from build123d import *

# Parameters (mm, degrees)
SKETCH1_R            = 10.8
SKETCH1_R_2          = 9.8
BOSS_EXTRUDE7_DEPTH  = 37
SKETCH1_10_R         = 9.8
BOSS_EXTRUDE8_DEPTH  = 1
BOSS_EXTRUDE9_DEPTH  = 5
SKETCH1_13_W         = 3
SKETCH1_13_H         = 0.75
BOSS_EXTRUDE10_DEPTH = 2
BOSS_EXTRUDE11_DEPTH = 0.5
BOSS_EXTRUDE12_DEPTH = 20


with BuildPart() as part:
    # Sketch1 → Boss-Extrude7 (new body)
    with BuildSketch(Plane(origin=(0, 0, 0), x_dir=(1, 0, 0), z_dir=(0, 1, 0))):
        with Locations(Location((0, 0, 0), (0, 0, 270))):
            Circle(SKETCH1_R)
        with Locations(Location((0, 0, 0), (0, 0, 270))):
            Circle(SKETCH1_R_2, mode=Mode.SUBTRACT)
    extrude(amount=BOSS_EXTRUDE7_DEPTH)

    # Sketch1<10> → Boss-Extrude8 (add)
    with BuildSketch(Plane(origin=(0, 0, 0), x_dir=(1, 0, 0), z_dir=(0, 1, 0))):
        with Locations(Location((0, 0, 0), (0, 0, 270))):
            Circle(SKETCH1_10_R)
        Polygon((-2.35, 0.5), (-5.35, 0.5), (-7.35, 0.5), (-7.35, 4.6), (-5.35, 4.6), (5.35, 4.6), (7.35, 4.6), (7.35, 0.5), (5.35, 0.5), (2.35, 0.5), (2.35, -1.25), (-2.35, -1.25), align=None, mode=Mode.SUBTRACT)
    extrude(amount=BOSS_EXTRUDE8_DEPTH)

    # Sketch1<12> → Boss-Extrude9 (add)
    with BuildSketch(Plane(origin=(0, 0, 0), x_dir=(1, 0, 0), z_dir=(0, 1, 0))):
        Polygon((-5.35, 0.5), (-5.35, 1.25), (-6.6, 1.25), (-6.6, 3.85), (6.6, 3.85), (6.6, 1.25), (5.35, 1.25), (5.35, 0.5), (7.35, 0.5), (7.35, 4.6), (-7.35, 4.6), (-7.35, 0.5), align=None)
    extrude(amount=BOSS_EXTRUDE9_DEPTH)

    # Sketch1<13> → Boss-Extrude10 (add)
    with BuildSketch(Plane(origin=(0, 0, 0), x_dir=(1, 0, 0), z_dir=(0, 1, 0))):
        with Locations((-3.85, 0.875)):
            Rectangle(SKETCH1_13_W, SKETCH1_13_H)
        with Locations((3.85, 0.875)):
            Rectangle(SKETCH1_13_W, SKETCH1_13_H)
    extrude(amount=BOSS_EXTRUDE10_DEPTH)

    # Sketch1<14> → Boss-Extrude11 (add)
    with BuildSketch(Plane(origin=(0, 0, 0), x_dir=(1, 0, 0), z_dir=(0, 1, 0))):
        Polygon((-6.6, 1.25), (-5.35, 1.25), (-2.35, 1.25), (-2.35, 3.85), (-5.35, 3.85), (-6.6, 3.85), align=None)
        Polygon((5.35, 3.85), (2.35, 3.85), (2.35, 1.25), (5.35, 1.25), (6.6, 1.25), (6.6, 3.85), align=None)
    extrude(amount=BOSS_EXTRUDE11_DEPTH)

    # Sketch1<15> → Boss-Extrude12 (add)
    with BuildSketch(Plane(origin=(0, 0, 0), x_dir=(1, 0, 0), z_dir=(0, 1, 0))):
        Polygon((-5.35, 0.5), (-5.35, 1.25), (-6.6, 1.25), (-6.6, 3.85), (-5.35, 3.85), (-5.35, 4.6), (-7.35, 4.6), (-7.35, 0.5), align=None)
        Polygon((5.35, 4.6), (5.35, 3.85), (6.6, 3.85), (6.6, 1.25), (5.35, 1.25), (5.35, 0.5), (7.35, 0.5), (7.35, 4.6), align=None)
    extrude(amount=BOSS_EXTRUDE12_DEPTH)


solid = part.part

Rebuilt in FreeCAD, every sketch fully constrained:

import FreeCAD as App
import Part
import Sketcher
from FreeCAD import Vector

doc = App.newDocument("Part")
body = doc.addObject("PartDesign::Body", "Body")

# Sketch on XZ plane
sketch1 = doc.addObject("Sketcher::SketchObject", "Sketch")
body.addObject(sketch1)
sketch1.AttachmentSupport = (doc.XZ_Plane, [""])
sketch1.MapMode = "FlatFace"
sketch1.addGeometry([
    Part.Circle(Vector(0, 0, 0), Vector(0, 0, 1), 11),
    Part.Circle(Vector(0, 0, 0), Vector(0, 0, 1), 10),
], False)
sketch1.addConstraint([
    Sketcher.Constraint("Coincident", 0, 3, -1, 1),
    Sketcher.Constraint("Coincident", 1, 3, -1, 1),
    Sketcher.Constraint("Diameter", 0, 21.6),
    Sketcher.Constraint("Diameter", 1, 19.6),
])
pad1 = doc.addObject("PartDesign::Pad", "Pad")
body.addObject(pad1)
pad1.Profile = sketch1
pad1.Length = 37
pad1.Reversed = True

# Sketch on XZ plane
sketch2 = doc.addObject("Sketcher::SketchObject", "Sketch001")
body.addObject(sketch2)
sketch2.AttachmentSupport = (doc.XZ_Plane, [""])
sketch2.MapMode = "FlatFace"
sketch2.addGeometry([
    Part.Circle(Vector(0, 0, 0), Vector(0, 0, 1), 9.8),  # 0
    Part.LineSegment(Vector(-2.4, 1.2, 0), Vector(-2.4, -0.5, 0)),  # 1
    Part.LineSegment(Vector(-2.4, -0.5, 0), Vector(-7.3, -0.5, 0)),  # 2
    Part.LineSegment(Vector(-7.3, -0.5, 0), Vector(-7.3, -4.6, 0)),  # 3
    Part.LineSegment(Vector(-7.3, -4.6, 0), Vector(7.3, -4.6, 0)),  # 4
    Part.LineSegment(Vector(7.3, -4.6, 0), Vector(7.3, -0.5, 0)),  # 5
    Part.LineSegment(Vector(7.3, -0.5, 0), Vector(2.4, -0.5, 0)),  # 6
    Part.LineSegment(Vector(2.4, -0.5, 0), Vector(2.4, 1.2, 0)),  # 7
    Part.LineSegment(Vector(2.4, 1.2, 0), Vector(-2.4, 1.2, 0)),  # 8
], False)
sketch2.addConstraint([
    Sketcher.Constraint("Coincident", 1, 2, 2, 1),
    Sketcher.Constraint("Coincident", 2, 2, 3, 1),
    Sketcher.Constraint("Coincident", 3, 2, 4, 1),
    Sketcher.Constraint("Coincident", 4, 2, 5, 1),
    Sketcher.Constraint("Coincident", 5, 2, 6, 1),
    Sketcher.Constraint("Coincident", 6, 2, 7, 1),
    Sketcher.Constraint("Coincident", 7, 2, 8, 1),
    Sketcher.Constraint("Coincident", 8, 2, 1, 1),
    Sketcher.Constraint("Vertical", 1),
    Sketcher.Constraint("Horizontal", 2),
    Sketcher.Constraint("Vertical", 3),
    Sketcher.Constraint("Horizontal", 4),
    Sketcher.Constraint("Vertical", 5),
    Sketcher.Constraint("Horizontal", 6),
    Sketcher.Constraint("Vertical", 7),
    Sketcher.Constraint("Horizontal", 8),
    Sketcher.Constraint("Coincident", 0, 3, -1, 1),
    Sketcher.Constraint("Symmetric", 2, 2, 5, 2, -2),
    Sketcher.Constraint("Equal", 2, 6),
    Sketcher.Constraint("Diameter", 0, 19.6),
    Sketcher.Constraint("DistanceX", 2, 2, 2, 1, 5.0),
    Sketcher.Constraint("DistanceX", 4, 1, 4, 2, 14.7),
    Sketcher.Constraint("DistanceY", 3, 2, 3, 1, 4.1),
    Sketcher.Constraint("DistanceY", 1, 2, 1, 1, 1.75),
    Sketcher.Constraint("DistanceY", 1, 2, -1, 1, 0.5),
])
pad2 = doc.addObject("PartDesign::Pad", "Pad001")
body.addObject(pad2)
pad2.Profile = sketch2
pad2.Length = 1
pad2.Reversed = True

# Sketch on XZ plane
sketch3 = doc.addObject("Sketcher::SketchObject", "Sketch002")
body.addObject(sketch3)
sketch3.AttachmentSupport = (doc.XZ_Plane, [""])
sketch3.MapMode = "FlatFace"
sketch3.addGeometry([
    Part.LineSegment(Vector(-5.3, -0.5, 0), Vector(-5.3, -1.2, 0)),  # 0
    Part.LineSegment(Vector(-5.3, -1.2, 0), Vector(-6.6, -1.2, 0)),  # 1
    Part.LineSegment(Vector(-6.6, -1.2, 0), Vector(-6.6, -3.9, 0)),  # 2
    Part.LineSegment(Vector(-6.6, -3.9, 0), Vector(6.6, -3.9, 0)),  # 3
    Part.LineSegment(Vector(6.6, -3.9, 0), Vector(6.6, -1.2, 0)),  # 4
    Part.LineSegment(Vector(6.6, -1.2, 0), Vector(5.3, -1.2, 0)),  # 5
    Part.LineSegment(Vector(5.3, -1.2, 0), Vector(5.3, -0.5, 0)),  # 6
    Part.LineSegment(Vector(5.3, -0.5, 0), Vector(7.3, -0.5, 0)),  # 7
    Part.LineSegment(Vector(7.3, -0.5, 0), Vector(7.3, -4.6, 0)),  # 8
    Part.LineSegment(Vector(7.3, -4.6, 0), Vector(-7.3, -4.6, 0)),  # 9
    Part.LineSegment(Vector(-7.3, -4.6, 0), Vector(-7.3, -0.5, 0)),  # 10
    Part.LineSegment(Vector(-7.3, -0.5, 0), Vector(-5.3, -0.5, 0)),  # 11
], False)
sketch3.addConstraint([
    Sketcher.Constraint("Coincident", 0, 2, 1, 1),
    Sketcher.Constraint("Coincident", 1, 2, 2, 1),
    Sketcher.Constraint("Coincident", 2, 2, 3, 1),
    Sketcher.Constraint("Coincident", 3, 2, 4, 1),
    Sketcher.Constraint("Coincident", 4, 2, 5, 1),
    Sketcher.Constraint("Coincident", 5, 2, 6, 1),
    Sketcher.Constraint("Coincident", 6, 2, 7, 1),
    Sketcher.Constraint("Coincident", 7, 2, 8, 1),
    Sketcher.Constraint("Coincident", 8, 2, 9, 1),
    Sketcher.Constraint("Coincident", 9, 2, 10, 1),
    Sketcher.Constraint("Coincident", 10, 2, 11, 1),
    Sketcher.Constraint("Coincident", 11, 2, 0, 1),
    Sketcher.Constraint("Vertical", 0),
    Sketcher.Constraint("Horizontal", 1),
    Sketcher.Constraint("Vertical", 2),
    Sketcher.Constraint("Horizontal", 3),
    Sketcher.Constraint("Vertical", 4),
    Sketcher.Constraint("Horizontal", 5),
    Sketcher.Constraint("Vertical", 6),
    Sketcher.Constraint("Horizontal", 7),
    Sketcher.Constraint("Vertical", 8),
    Sketcher.Constraint("Horizontal", 9),
    Sketcher.Constraint("Vertical", 10),
    Sketcher.Constraint("Horizontal", 11),
    Sketcher.Constraint("Symmetric", 1, 2, 4, 2, -2),
    Sketcher.Constraint("Symmetric", 7, 2, 10, 2, -2),
    Sketcher.Constraint("Equal", 1, 5),
    Sketcher.Constraint("DistanceX", 7, 1, 7, 2, 2.0),
    Sketcher.Constraint("DistanceX", 3, 1, 3, 2, 13.2),
    Sketcher.Constraint("DistanceX", 9, 2, 9, 1, 14.7),
    Sketcher.Constraint("DistanceY", 2, 2, 2, 1, 2.6),
    Sketcher.Constraint("DistanceY", 8, 2, 8, 1, 4.1),
    Sketcher.Constraint("DistanceY", 0, 2, 0, 1, 0.75),
    Sketcher.Constraint("DistanceY", 6, 2, -1, 1, 0.5),
])
pad3 = doc.addObject("PartDesign::Pad", "Pad002")
body.addObject(pad3)
pad3.Profile = sketch3
pad3.Length = 5
pad3.Reversed = True

# Sketch on XZ plane
sketch4 = doc.addObject("Sketcher::SketchObject", "Sketch003")
body.addObject(sketch4)
sketch4.AttachmentSupport = (doc.XZ_Plane, [""])
sketch4.MapMode = "FlatFace"
sketch4.addGeometry([
    Part.LineSegment(Vector(-5.3, -1.2, 0), Vector(-5.3, -0.5, 0)),  # 0
    Part.LineSegment(Vector(-5.3, -0.5, 0), Vector(-2.4, -0.5, 0)),  # 1
    Part.LineSegment(Vector(-2.4, -0.5, 0), Vector(-2.4, -1.2, 0)),  # 2
    Part.LineSegment(Vector(-2.4, -1.2, 0), Vector(-5.3, -1.2, 0)),  # 3
    Part.LineSegment(Vector(2.4, -1.2, 0), Vector(2.4, -0.5, 0)),  # 4
    Part.LineSegment(Vector(2.4, -0.5, 0), Vector(5.3, -0.5, 0)),  # 5
    Part.LineSegment(Vector(5.3, -0.5, 0), Vector(5.3, -1.2, 0)),  # 6
    Part.LineSegment(Vector(5.3, -1.2, 0), Vector(2.4, -1.2, 0)),  # 7
], False)
sketch4.addConstraint([
    Sketcher.Constraint("Coincident", 0, 2, 1, 1),
    Sketcher.Constraint("Coincident", 1, 2, 2, 1),
    Sketcher.Constraint("Coincident", 2, 2, 3, 1),
    Sketcher.Constraint("Coincident", 3, 2, 0, 1),
    Sketcher.Constraint("Coincident", 4, 2, 5, 1),
    Sketcher.Constraint("Coincident", 5, 2, 6, 1),
    Sketcher.Constraint("Coincident", 6, 2, 7, 1),
    Sketcher.Constraint("Coincident", 7, 2, 4, 1),
    Sketcher.Constraint("Vertical", 0),
    Sketcher.Constraint("Horizontal", 1),
    Sketcher.Constraint("Vertical", 2),
    Sketcher.Constraint("Horizontal", 3),
    Sketcher.Constraint("Vertical", 4),
    Sketcher.Constraint("Horizontal", 5),
    Sketcher.Constraint("Vertical", 6),
    Sketcher.Constraint("Horizontal", 7),
    Sketcher.Constraint("Symmetric", 1, 2, 4, 2, -2),
    Sketcher.Constraint("Symmetric", 3, 2, 6, 2, -2),
    Sketcher.Constraint("DistanceX", 1, 1, 1, 2, 3.0),
    Sketcher.Constraint("DistanceY", 0, 1, 0, 2, 0.75),
    Sketcher.Constraint("DistanceY", 0, 2, -1, 1, 0.5),
    Sketcher.Constraint("DistanceX", 1, 2, 4, 2, 4.7),
])
pad4 = doc.addObject("PartDesign::Pad", "Pad003")
body.addObject(pad4)
pad4.Profile = sketch4
pad4.Length = 2
pad4.Reversed = True

# Sketch on XZ plane
sketch5 = doc.addObject("Sketcher::SketchObject", "Sketch004")
body.addObject(sketch5)
sketch5.AttachmentSupport = (doc.XZ_Plane, [""])
sketch5.MapMode = "FlatFace"
sketch5.addGeometry([
    Part.LineSegment(Vector(-6.6, -1.2, 0), Vector(-2.4, -1.2, 0)),  # 0
    Part.LineSegment(Vector(-2.4, -1.2, 0), Vector(-2.4, -3.9, 0)),  # 1
    Part.LineSegment(Vector(-2.4, -3.9, 0), Vector(-6.6, -3.9, 0)),  # 2
    Part.LineSegment(Vector(-6.6, -3.9, 0), Vector(-6.6, -1.2, 0)),  # 3
    Part.LineSegment(Vector(2.4, -3.9, 0), Vector(2.4, -1.2, 0)),  # 4
    Part.LineSegment(Vector(2.4, -1.2, 0), Vector(6.6, -1.2, 0)),  # 5
    Part.LineSegment(Vector(6.6, -1.2, 0), Vector(6.6, -3.9, 0)),  # 6
    Part.LineSegment(Vector(6.6, -3.9, 0), Vector(2.4, -3.9, 0)),  # 7
], False)
sketch5.addConstraint([
    Sketcher.Constraint("Coincident", 0, 2, 1, 1),
    Sketcher.Constraint("Coincident", 1, 2, 2, 1),
    Sketcher.Constraint("Coincident", 2, 2, 3, 1),
    Sketcher.Constraint("Coincident", 3, 2, 0, 1),
    Sketcher.Constraint("Coincident", 4, 2, 5, 1),
    Sketcher.Constraint("Coincident", 5, 2, 6, 1),
    Sketcher.Constraint("Coincident", 6, 2, 7, 1),
    Sketcher.Constraint("Coincident", 7, 2, 4, 1),
    Sketcher.Constraint("Horizontal", 0),
    Sketcher.Constraint("Vertical", 1),
    Sketcher.Constraint("Horizontal", 2),
    Sketcher.Constraint("Vertical", 3),
    Sketcher.Constraint("Vertical", 4),
    Sketcher.Constraint("Horizontal", 5),
    Sketcher.Constraint("Vertical", 6),
    Sketcher.Constraint("Horizontal", 7),
    Sketcher.Constraint("Symmetric", 0, 2, 4, 2, -2),
    Sketcher.Constraint("Symmetric", 2, 2, 6, 2, -2),
    Sketcher.Constraint("DistanceY", 1, 2, 1, 1, 2.6),
    Sketcher.Constraint("DistanceX", 0, 1, 0, 2, 4.25),
    Sketcher.Constraint("DistanceX", 2, 2, -1, 1, 6.6),
    Sketcher.Constraint("DistanceY", 0, 2, -1, 1, 1.25),
])
pad5 = doc.addObject("PartDesign::Pad", "Pad004")
body.addObject(pad5)
pad5.Profile = sketch5
pad5.Length = 0.5
pad5.Reversed = True

# Sketch on XZ plane
sketch6 = doc.addObject("Sketcher::SketchObject", "Sketch005")
body.addObject(sketch6)
sketch6.AttachmentSupport = (doc.XZ_Plane, [""])
sketch6.MapMode = "FlatFace"
sketch6.addGeometry([
    Part.LineSegment(Vector(-5.3, -0.5, 0), Vector(-5.3, -1.2, 0)),  # 0
    Part.LineSegment(Vector(-5.3, -1.2, 0), Vector(-6.6, -1.2, 0)),  # 1
    Part.LineSegment(Vector(-6.6, -1.2, 0), Vector(-6.6, -3.9, 0)),  # 2
    Part.LineSegment(Vector(-6.6, -3.9, 0), Vector(-5.3, -3.9, 0)),  # 3
    Part.LineSegment(Vector(-5.3, -3.9, 0), Vector(-5.3, -4.6, 0)),  # 4
    Part.LineSegment(Vector(-5.3, -4.6, 0), Vector(-7.3, -4.6, 0)),  # 5
    Part.LineSegment(Vector(-7.3, -4.6, 0), Vector(-7.3, -0.5, 0)),  # 6
    Part.LineSegment(Vector(-7.3, -0.5, 0), Vector(-5.3, -0.5, 0)),  # 7
    Part.LineSegment(Vector(5.3, -4.6, 0), Vector(5.3, -3.9, 0)),  # 8
    Part.LineSegment(Vector(5.3, -3.9, 0), Vector(6.6, -3.9, 0)),  # 9
    Part.LineSegment(Vector(6.6, -3.9, 0), Vector(6.6, -1.2, 0)),  # 10
    Part.LineSegment(Vector(6.6, -1.2, 0), Vector(5.3, -1.2, 0)),  # 11
    Part.LineSegment(Vector(5.3, -1.2, 0), Vector(5.3, -0.5, 0)),  # 12
    Part.LineSegment(Vector(5.3, -0.5, 0), Vector(7.3, -0.5, 0)),  # 13
    Part.LineSegment(Vector(7.3, -0.5, 0), Vector(7.3, -4.6, 0)),  # 14
    Part.LineSegment(Vector(7.3, -4.6, 0), Vector(5.3, -4.6, 0)),  # 15
], False)
sketch6.addConstraint([
    Sketcher.Constraint("Coincident", 0, 2, 1, 1),
    Sketcher.Constraint("Coincident", 1, 2, 2, 1),
    Sketcher.Constraint("Coincident", 2, 2, 3, 1),
    Sketcher.Constraint("Coincident", 3, 2, 4, 1),
    Sketcher.Constraint("Coincident", 4, 2, 5, 1),
    Sketcher.Constraint("Coincident", 5, 2, 6, 1),
    Sketcher.Constraint("Coincident", 6, 2, 7, 1),
    Sketcher.Constraint("Coincident", 7, 2, 0, 1),
    Sketcher.Constraint("Coincident", 8, 2, 9, 1),
    Sketcher.Constraint("Coincident", 9, 2, 10, 1),
    Sketcher.Constraint("Coincident", 10, 2, 11, 1),
    Sketcher.Constraint("Coincident", 11, 2, 12, 1),
    Sketcher.Constraint("Coincident", 12, 2, 13, 1),
    Sketcher.Constraint("Coincident", 13, 2, 14, 1),
    Sketcher.Constraint("Coincident", 14, 2, 15, 1),
    Sketcher.Constraint("Coincident", 15, 2, 8, 1),
    Sketcher.Constraint("Vertical", 0),
    Sketcher.Constraint("Horizontal", 1),
    Sketcher.Constraint("Vertical", 2),
    Sketcher.Constraint("Horizontal", 3),
    Sketcher.Constraint("Vertical", 4),
    Sketcher.Constraint("Horizontal", 5),
    Sketcher.Constraint("Vertical", 6),
    Sketcher.Constraint("Horizontal", 7),
    Sketcher.Constraint("Vertical", 8),
    Sketcher.Constraint("Horizontal", 9),
    Sketcher.Constraint("Vertical", 10),
    Sketcher.Constraint("Horizontal", 11),
    Sketcher.Constraint("Vertical", 12),
    Sketcher.Constraint("Horizontal", 13),
    Sketcher.Constraint("Vertical", 14),
    Sketcher.Constraint("Horizontal", 15),
    Sketcher.Constraint("Symmetric", 3, 2, 8, 2, -2),
    Sketcher.Constraint("Symmetric", 1, 2, 10, 2, -2),
    Sketcher.Constraint("Symmetric", 7, 2, 12, 2, -2),
    Sketcher.Constraint("Symmetric", 5, 2, 14, 2, -2),
    Sketcher.Constraint("Vertical", 0, 2, 3, 2),
    Sketcher.Constraint("Equal", 0, 4),
    Sketcher.Constraint("DistanceX", 5, 2, 5, 1, 2.0),
    Sketcher.Constraint("DistanceY", 2, 2, 2, 1, 2.6),
    Sketcher.Constraint("DistanceY", 6, 1, 6, 2, 4.1),
    Sketcher.Constraint("DistanceX", 1, 2, 1, 1, 1.25),
    Sketcher.Constraint("DistanceX", 1, 2, -1, 1, 6.6),
    Sketcher.Constraint("DistanceY", 4, 2, -1, 1, 4.6),
])
pad6 = doc.addObject("PartDesign::Pad", "Pad005")
body.addObject(pad6)
pad6.Profile = sketch6
pad6.Length = 20
pad6.Reversed = True

doc.recompute()
